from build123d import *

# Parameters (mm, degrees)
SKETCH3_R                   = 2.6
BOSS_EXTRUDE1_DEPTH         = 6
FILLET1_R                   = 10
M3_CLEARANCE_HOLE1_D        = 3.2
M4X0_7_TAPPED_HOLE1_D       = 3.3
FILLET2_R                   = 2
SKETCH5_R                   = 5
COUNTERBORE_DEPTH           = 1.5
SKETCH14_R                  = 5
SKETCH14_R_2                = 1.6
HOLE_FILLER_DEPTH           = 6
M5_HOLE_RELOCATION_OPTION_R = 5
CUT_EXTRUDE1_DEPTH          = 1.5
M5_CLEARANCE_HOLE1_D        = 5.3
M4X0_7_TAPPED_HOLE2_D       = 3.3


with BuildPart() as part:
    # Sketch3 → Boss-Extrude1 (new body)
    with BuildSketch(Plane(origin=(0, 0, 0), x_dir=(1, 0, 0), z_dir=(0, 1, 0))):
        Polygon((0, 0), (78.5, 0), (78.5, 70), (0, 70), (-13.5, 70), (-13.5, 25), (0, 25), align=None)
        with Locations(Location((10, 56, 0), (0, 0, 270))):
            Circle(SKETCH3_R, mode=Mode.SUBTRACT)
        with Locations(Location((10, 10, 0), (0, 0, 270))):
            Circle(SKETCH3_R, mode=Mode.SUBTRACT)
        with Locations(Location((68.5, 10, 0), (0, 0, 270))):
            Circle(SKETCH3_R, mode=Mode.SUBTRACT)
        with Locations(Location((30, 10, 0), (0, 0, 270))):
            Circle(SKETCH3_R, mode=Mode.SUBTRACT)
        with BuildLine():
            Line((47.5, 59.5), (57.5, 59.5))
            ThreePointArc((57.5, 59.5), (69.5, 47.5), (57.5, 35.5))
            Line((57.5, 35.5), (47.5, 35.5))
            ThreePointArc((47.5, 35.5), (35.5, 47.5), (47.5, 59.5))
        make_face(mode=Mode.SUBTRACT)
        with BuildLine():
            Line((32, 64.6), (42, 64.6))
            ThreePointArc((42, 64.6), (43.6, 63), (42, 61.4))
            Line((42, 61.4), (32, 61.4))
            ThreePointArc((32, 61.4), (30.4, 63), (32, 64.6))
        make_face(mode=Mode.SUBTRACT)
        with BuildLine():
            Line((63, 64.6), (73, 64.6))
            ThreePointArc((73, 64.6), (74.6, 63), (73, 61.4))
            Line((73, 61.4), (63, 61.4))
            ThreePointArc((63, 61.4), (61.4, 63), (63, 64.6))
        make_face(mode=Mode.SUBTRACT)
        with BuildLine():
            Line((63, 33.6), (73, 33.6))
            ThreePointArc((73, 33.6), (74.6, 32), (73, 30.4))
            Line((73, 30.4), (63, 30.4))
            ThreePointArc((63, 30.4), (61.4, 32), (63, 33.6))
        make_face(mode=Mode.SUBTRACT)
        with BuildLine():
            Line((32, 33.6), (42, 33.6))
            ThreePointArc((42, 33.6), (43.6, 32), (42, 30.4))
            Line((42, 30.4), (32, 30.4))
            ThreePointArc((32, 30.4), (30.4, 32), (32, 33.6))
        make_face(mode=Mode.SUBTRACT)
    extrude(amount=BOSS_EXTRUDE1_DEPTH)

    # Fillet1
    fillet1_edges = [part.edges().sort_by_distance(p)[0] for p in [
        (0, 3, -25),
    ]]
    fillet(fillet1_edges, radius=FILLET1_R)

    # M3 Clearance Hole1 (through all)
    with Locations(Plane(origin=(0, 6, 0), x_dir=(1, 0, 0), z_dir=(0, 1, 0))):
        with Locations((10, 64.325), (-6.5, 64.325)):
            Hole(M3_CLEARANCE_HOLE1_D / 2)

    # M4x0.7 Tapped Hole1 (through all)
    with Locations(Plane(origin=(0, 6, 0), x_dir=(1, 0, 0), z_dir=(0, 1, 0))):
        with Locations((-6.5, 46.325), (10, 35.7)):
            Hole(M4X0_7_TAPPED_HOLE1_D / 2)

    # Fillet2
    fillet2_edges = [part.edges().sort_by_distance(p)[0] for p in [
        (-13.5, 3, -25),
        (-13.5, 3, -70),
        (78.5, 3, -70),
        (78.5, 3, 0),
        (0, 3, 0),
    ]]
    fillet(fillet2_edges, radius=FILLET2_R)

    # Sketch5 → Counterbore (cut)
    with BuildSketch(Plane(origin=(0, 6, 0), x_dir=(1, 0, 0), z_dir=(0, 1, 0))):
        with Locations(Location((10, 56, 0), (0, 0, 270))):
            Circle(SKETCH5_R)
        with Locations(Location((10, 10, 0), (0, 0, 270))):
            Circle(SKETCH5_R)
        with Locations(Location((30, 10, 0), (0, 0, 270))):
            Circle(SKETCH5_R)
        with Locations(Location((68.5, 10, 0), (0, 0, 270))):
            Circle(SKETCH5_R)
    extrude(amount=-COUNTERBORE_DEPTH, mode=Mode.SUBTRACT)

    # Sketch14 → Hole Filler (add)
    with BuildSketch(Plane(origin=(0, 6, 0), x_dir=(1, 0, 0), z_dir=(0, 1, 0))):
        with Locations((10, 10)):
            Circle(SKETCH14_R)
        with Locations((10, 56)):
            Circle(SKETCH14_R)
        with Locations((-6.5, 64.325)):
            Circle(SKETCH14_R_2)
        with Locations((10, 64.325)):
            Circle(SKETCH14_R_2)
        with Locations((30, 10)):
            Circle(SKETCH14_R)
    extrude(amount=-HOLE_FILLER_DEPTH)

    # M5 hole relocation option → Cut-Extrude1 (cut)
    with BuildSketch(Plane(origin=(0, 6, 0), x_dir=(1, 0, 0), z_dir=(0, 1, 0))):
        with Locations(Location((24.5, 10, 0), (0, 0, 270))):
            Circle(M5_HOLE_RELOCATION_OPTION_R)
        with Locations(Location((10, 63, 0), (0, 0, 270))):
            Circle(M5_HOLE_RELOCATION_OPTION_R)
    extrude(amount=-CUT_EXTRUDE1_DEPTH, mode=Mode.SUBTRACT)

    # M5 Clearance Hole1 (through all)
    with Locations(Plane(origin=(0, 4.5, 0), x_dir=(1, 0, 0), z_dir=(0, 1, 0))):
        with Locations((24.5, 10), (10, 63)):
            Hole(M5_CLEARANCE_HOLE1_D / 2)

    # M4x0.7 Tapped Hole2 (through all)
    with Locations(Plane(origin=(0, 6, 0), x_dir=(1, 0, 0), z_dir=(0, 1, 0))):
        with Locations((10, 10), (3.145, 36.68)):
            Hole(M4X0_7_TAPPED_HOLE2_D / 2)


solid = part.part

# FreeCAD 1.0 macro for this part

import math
import FreeCAD as App
import Part
import Sketcher

V = App.Vector


def edges_at(feature, points):
    """Names of the edges that pass closest to the given points."""
    edges = feature.Shape.Edges
    near = lambda p: min(range(len(edges)), key=lambda i: edges[i].distToShape(Part.Vertex(*p))[0])
    return sorted({f"Edge{near(p) + 1}" for p in points})


def add_polygon(sketch, points):
    """Adds a closed chain of lines whose ends are joined by coincident constraints."""
    first, n = sketch.GeometryCount, len(points)
    for a, b in zip(points, points[1:] + points[:1]):
        sketch.addGeometry(Part.LineSegment(App.Vector(*a, 0), App.Vector(*b, 0)), False)
    for i in range(n):
        sketch.addConstraint(Sketcher.Constraint("Coincident", first + i, 2, first + (i + 1) % n, 1))

doc = App.newDocument("Part")
body = doc.addObject("PartDesign::Body", "Body")

# Sketch on XZ plane
sketch1 = body.newObject("Sketcher::SketchObject", "Sketch")
sketch1.AttachmentSupport = (doc.getObject("XZ_Plane"), [""])
sketch1.MapMode = "FlatFace"
add_polygon(sketch1, [(0, 0), (78.5, 0), (78.5, -70), (-13.5, -70), (-13.5, -25), (0, -25)])  # lines 0-5
sketch1.addGeometry(Part.Circle(V(10, -10, 0), V(0, 0, 1), 2.6), False)  # 6
sketch1.addGeometry(Part.Circle(V(30, -10, 0), V(0, 0, 1), 2.6), False)  # 7
sketch1.addGeometry(Part.ArcOfCircle(Part.Circle(V(32, -32, 0), V(0, 0, 1), 1.6), math.radians(90), math.radians(270)), False)  # 8
sketch1.addGeometry(Part.LineSegment(V(32, -33.6, 0), V(42, -33.6, 0)), False)  # 9
sketch1.addGeometry(Part.ArcOfCircle(Part.Circle(V(42, -32, 0), V(0, 0, 1), 1.6), math.radians(-90), math.radians(90)), False)  # 10
sketch1.addGeometry(Part.LineSegment(V(42, -30.4, 0), V(32, -30.4, 0)), False)  # 11
sketch1.addGeometry(Part.Circle(V(68.5, -10, 0), V(0, 0, 1), 2.6), False)  # 12
sketch1.addGeometry(Part.ArcOfCircle(Part.Circle(V(63, -32, 0), V(0, 0, 1), 1.6), math.radians(90), math.radians(270)), False)  # 13
sketch1.addGeometry(Part.LineSegment(V(63, -33.6, 0), V(73, -33.6, 0)), False)  # 14
sketch1.addGeometry(Part.ArcOfCircle(Part.Circle(V(73, -32, 0), V(0, 0, 1), 1.6), math.radians(-90), math.radians(90)), False)  # 15
sketch1.addGeometry(Part.LineSegment(V(73, -30.4, 0), V(63, -30.4, 0)), False)  # 16
sketch1.addGeometry(Part.Circle(V(10, -56, 0), V(0, 0, 1), 2.6), False)  # 17
sketch1.addGeometry(Part.ArcOfCircle(Part.Circle(V(32, -63, 0), V(0, 0, 1), 1.6), math.radians(90), math.radians(270)), False)  # 18
sketch1.addGeometry(Part.LineSegment(V(32, -64.6, 0), V(42, -64.6, 0)), False)  # 19
sketch1.addGeometry(Part.ArcOfCircle(Part.Circle(V(42, -63, 0), V(0, 0, 1), 1.6), math.radians(-90), math.radians(90)), False)  # 20
sketch1.addGeometry(Part.LineSegment(V(42, -61.4, 0), V(32, -61.4, 0)), False)  # 21
sketch1.addGeometry(Part.ArcOfCircle(Part.Circle(V(47.5, -47.5, 0), V(0, 0, 1), 12), math.radians(90), math.radians(270)), False)  # 22
sketch1.addGeometry(Part.LineSegment(V(47.5, -59.5, 0), V(57.5, -59.5, 0)), False)  # 23
sketch1.addGeometry(Part.ArcOfCircle(Part.Circle(V(57.5, -47.5, 0), V(0, 0, 1), 12), math.radians(-90), math.radians(90)), False)  # 24
sketch1.addGeometry(Part.LineSegment(V(57.5, -35.5, 0), V(47.5, -35.5, 0)), False)  # 25
sketch1.addGeometry(Part.ArcOfCircle(Part.Circle(V(63, -63, 0), V(0, 0, 1), 1.6), math.radians(90), math.radians(270)), False)  # 26
sketch1.addGeometry(Part.LineSegment(V(63, -64.6, 0), V(73, -64.6, 0)), False)  # 27
sketch1.addGeometry(Part.ArcOfCircle(Part.Circle(V(73, -63, 0), V(0, 0, 1), 1.6), math.radians(-90), math.radians(90)), False)  # 28
sketch1.addGeometry(Part.LineSegment(V(73, -61.4, 0), V(63, -61.4, 0)), False)  # 29
sketch1.addConstraint([
    Sketcher.Constraint("Tangent", 8, 2, 9, 1),
    Sketcher.Constraint("Tangent", 9, 2, 10, 1),
    Sketcher.Constraint("Tangent", 10, 2, 11, 1),
    Sketcher.Constraint("Tangent", 11, 2, 8, 1),
    Sketcher.Constraint("Tangent", 13, 2, 14, 1),
    Sketcher.Constraint("Tangent", 14, 2, 15, 1),
    Sketcher.Constraint("Tangent", 15, 2, 16, 1),
    Sketcher.Constraint("Tangent", 16, 2, 13, 1),
    Sketcher.Constraint("Tangent", 18, 2, 19, 1),
    Sketcher.Constraint("Tangent", 19, 2, 20, 1),
    Sketcher.Constraint("Tangent", 20, 2, 21, 1),
    Sketcher.Constraint("Tangent", 21, 2, 18, 1),
    Sketcher.Constraint("Tangent", 22, 2, 23, 1),
    Sketcher.Constraint("Tangent", 23, 2, 24, 1),
    Sketcher.Constraint("Tangent", 24, 2, 25, 1),
    Sketcher.Constraint("Tangent", 25, 2, 22, 1),
    Sketcher.Constraint("Tangent", 26, 2, 27, 1),
    Sketcher.Constraint("Tangent", 27, 2, 28, 1),
    Sketcher.Constraint("Tangent", 28, 2, 29, 1),
    Sketcher.Constraint("Tangent", 29, 2, 26, 1),
    Sketcher.Constraint("Horizontal", 0),
    Sketcher.Constraint("Vertical", 1),
    Sketcher.Constraint("Horizontal", 2),
    Sketcher.Constraint("Vertical", 3),
    Sketcher.Constraint("Horizontal", 4),
    Sketcher.Constraint("Vertical", 5),
    Sketcher.Constraint("Horizontal", 9),
    Sketcher.Constraint("Horizontal", 11),
    Sketcher.Constraint("Horizontal", 14),
    Sketcher.Constraint("Horizontal", 16),
    Sketcher.Constraint("Horizontal", 19),
    Sketcher.Constraint("Horizontal", 21),
    Sketcher.Constraint("Horizontal", 23),
    Sketcher.Constraint("Horizontal", 25),
    Sketcher.Constraint("Horizontal", 27),
    Sketcher.Constraint("Horizontal", 29),
    Sketcher.Constraint("Coincident", 5, 2, -1, 1),
    Sketcher.Constraint("Equal", 6, 7),
    Sketcher.Constraint("Equal", 7, 12),
    Sketcher.Constraint("Equal", 10, 13),
    Sketcher.Constraint("Equal", 12, 17),
    Sketcher.Constraint("Equal", 15, 18),
    Sketcher.Constraint("Equal", 20, 26),
    Sketcher.Constraint("Horizontal", 6, 3, 7, 3),
    Sketcher.Constraint("Horizontal", 7, 3, 12, 3),
    Sketcher.Constraint("Horizontal", 10, 3, 13, 3),
    Sketcher.Constraint("Horizontal", 20, 3, 26, 3),
    Sketcher.Constraint("Vertical", 6, 3, 17, 3),
    Sketcher.Constraint("Vertical", 8, 3, 18, 3),
    Sketcher.Constraint("Vertical", 10, 3, 20, 3),
    Sketcher.Constraint("Vertical", 13, 3, 26, 3),
    Sketcher.Constraint("Vertical", 15, 3, 28, 3),
    Sketcher.Constraint("Equal", 11, 14),
    Sketcher.Constraint("Equal", 21, 23),
    Sketcher.Constraint("Radius", 22, 12.0),
    Sketcher.Constraint("Diameter", 6, 5.2),
    Sketcher.Constraint("Radius", 8, 1.6),
    Sketcher.Constraint("DistanceX", 2, 2, 2, 1, 92.0),
    Sketcher.Constraint("DistanceX", 9, 1, 9, 2, 10.0),
    Sketcher.Constraint("DistanceY", 1, 2, 1, 1, 70.0),
    Sketcher.Constraint("DistanceY", 3, 1, 3, 2, 45.0),
    Sketcher.Constraint("DistanceX", 0, 1, 0, 2, 78.5),
    Sketcher.Constraint("DistanceX", -1, 1, 6, 3, 10.0),
    Sketcher.Constraint("DistanceY", 6, 3, -1, 1, 10.0),
    Sketcher.Constraint("DistanceX", -1, 1, 7, 3, 30.0),
    Sketcher.Constraint("DistanceX", -1, 1, 8, 3, 32.0),
    Sketcher.Constraint("DistanceY", 8, 3, -1, 1, 32.0),
    Sketcher.Constraint("DistanceX", -1, 1, 13, 3, 63.0),
    Sketcher.Constraint("DistanceY", 17, 3, -1, 1, 56.0),
    Sketcher.Constraint("DistanceY", 18, 3, -1, 1, 63.0),
    Sketcher.Constraint("DistanceX", 12, 3, 0, 2, 10.0),
    Sketcher.Constraint("DistanceX", 24, 3, 1, 2, 21.0),
    Sketcher.Constraint("DistanceY", 22, 3, -1, 1, 47.5),
])
pad1 = body.newObject("PartDesign::Pad", "Pad")
pad1.Profile = sketch1
pad1.Length = 6
pad1.Reversed = True
doc.recompute()

fillet = body.newObject("PartDesign::Fillet", "Fillet")
fillet.Base = (pad1, edges_at(pad1, [(0, 3, -25)]))
fillet.Radius = 10

# Sketch on XZ plane
sketch2 = body.newObject("Sketcher::SketchObject", "Sketch001")
sketch2.AttachmentSupport = (doc.getObject("XZ_Plane"), [""])
sketch2.MapMode = "FlatFace"
sketch2.AttachmentOffset = App.Placement(V(0, 0, -6), App.Rotation())
sketch2.addGeometry([
    Part.Circle(V(10, -64.3, 0), V(0, 0, 1), 1.6),
    Part.Circle(V(-6.5, -64.3, 0), V(0, 0, 1), 1.6),
], False)
sketch2.addConstraint([
    Sketcher.Constraint("Equal", 0, 1),
    Sketcher.Constraint("Horizontal", 0, 3, 1, 3),
    Sketcher.Constraint("Diameter", 0, 3.2),
    Sketcher.Constraint("DistanceX", -1, 1, 0, 3, 10.0),
    Sketcher.Constraint("DistanceX", 1, 3, -1, 1, 6.5),
    Sketcher.Constraint("DistanceY", 0, 3, -1, 1, 64.325),
])
doc.recompute()
hole = body.newObject("PartDesign::Hole", "Hole")
hole.Profile = sketch2
hole.ThreadType = "None"
hole.Diameter = 3.2
hole.DepthType = "ThroughAll"
hole.Reversed = True

# Sketch on XZ plane
sketch3 = body.newObject("Sketcher::SketchObject", "Sketch002")
sketch3.AttachmentSupport = (doc.getObject("XZ_Plane"), [""])
sketch3.MapMode = "FlatFace"
sketch3.AttachmentOffset = App.Placement(V(0, 0, -6), App.Rotation())
sketch3.addGeometry([
    Part.Circle(V(-6.5, -46.3, 0), V(0, 0, 1), 1.6),
    Part.Circle(V(10, -35.7, 0), V(0, 0, 1), 1.6),
], False)
sketch3.addConstraint([
    Sketcher.Constraint("Equal", 0, 1),
    Sketcher.Constraint("Diameter", 0, 3.3),
    Sketcher.Constraint("DistanceX", -1, 1, 1, 3, 10.0),
    Sketcher.Constraint("DistanceX", 0, 3, -1, 1, 6.5),
    Sketcher.Constraint("DistanceY", 1, 3, -1, 1, 35.7),
    Sketcher.Constraint("DistanceY", 0, 3, -1, 1, 46.325),
])
doc.recompute()
hole2 = body.newObject("PartDesign::Hole", "Hole001")
hole2.Profile = sketch3
hole2.ThreadType = "None"
hole2.Diameter = 3.3
hole2.DepthType = "ThroughAll"
hole2.Reversed = True
doc.recompute()

fillet2 = body.newObject("PartDesign::Fillet", "Fillet001")
fillet2.Base = (hole2, edges_at(hole2, [
    (-13.5, 3, -25),
    (-13.5, 3, -70),
    (78.5, 3, -70),
    (78.5, 3, 0),
    (0, 3, 0),
]))
fillet2.Radius = 2

# Sketch on XZ plane
sketch4 = body.newObject("Sketcher::SketchObject", "Sketch003")
sketch4.AttachmentSupport = (doc.getObject("XZ_Plane"), [""])
sketch4.MapMode = "FlatFace"
sketch4.AttachmentOffset = App.Placement(V(0, 0, -6), App.Rotation())
sketch4.addGeometry([
    Part.Circle(V(10, -56, 0), V(0, 0, 1), 5),
    Part.Circle(V(10, -10, 0), V(0, 0, 1), 5),
    Part.Circle(V(30, -10, 0), V(0, 0, 1), 5),
    Part.Circle(V(68, -10, 0), V(0, 0, 1), 5),
], False)
sketch4.addConstraint([
    Sketcher.Constraint("Equal", 0, 1),
    Sketcher.Constraint("Equal", 1, 2),
    Sketcher.Constraint("Equal", 2, 3),
    Sketcher.Constraint("Horizontal", 1, 3, 2, 3),
    Sketcher.Constraint("Horizontal", 2, 3, 3, 3),
    Sketcher.Constraint("Vertical", 0, 3, 1, 3),
    Sketcher.Constraint("Diameter", 0, 10.0),
    Sketcher.Constraint("DistanceX", -1, 1, 0, 3, 10.0),
    Sketcher.Constraint("DistanceY", 0, 3, -1, 1, 56.0),
    Sketcher.Constraint("DistanceY", 1, 3, -1, 1, 10.0),
    Sketcher.Constraint("DistanceX", -1, 1, 2, 3, 30.0),
    Sketcher.Constraint("DistanceX", -1, 1, 3, 3, 68.5),
])
pocket1 = body.newObject("PartDesign::Pocket", "Pocket")
pocket1.Profile = sketch4
pocket1.Length = 1.5
pocket1.Reversed = True

# Sketch on XZ plane
sketch5 = body.newObject("Sketcher::SketchObject", "Sketch004")
sketch5.AttachmentSupport = (doc.getObject("XZ_Plane"), [""])
sketch5.MapMode = "FlatFace"
sketch5.AttachmentOffset = App.Placement(V(0, 0, -6), App.Rotation())
sketch5.addGeometry([
    Part.Circle(V(10, -10, 0), V(0, 0, 1), 5),  # 0
    Part.Circle(V(10, -56, 0), V(0, 0, 1), 5),  # 1
    Part.Circle(V(-6.5, -64.3, 0), V(0, 0, 1), 1.6),  # 2
    Part.Circle(V(10, -64.3, 0), V(0, 0, 1), 1.6),  # 3
    Part.Circle(V(30, -10, 0), V(0, 0, 1), 5),  # 4
], False)
sketch5.addConstraint([
    Sketcher.Constraint("Equal", 0, 1),
    Sketcher.Constraint("Equal", 2, 3),
    Sketcher.Constraint("Equal", 1, 4),
    Sketcher.Constraint("Horizontal", 2, 3, 3, 3),
    Sketcher.Constraint("Horizontal", 0, 3, 4, 3),
    Sketcher.Constraint("Vertical", 0, 3, 1, 3),
    Sketcher.Constraint("Vertical", 1, 3, 3, 3),
    Sketcher.Constraint("Diameter", 0, 10.0),
    Sketcher.Constraint("Diameter", 2, 3.2),
    Sketcher.Constraint("DistanceX", -1, 1, 0, 3, 10.0),
    Sketcher.Constraint("DistanceY", 0, 3, -1, 1, 10.0),
    Sketcher.Constraint("DistanceY", 1, 3, -1, 1, 56.0),
    Sketcher.Constraint("DistanceX", -1, 1, 4, 3, 30.0),
    Sketcher.Constraint("DistanceX", 2, 3, -1, 1, 6.5),
    Sketcher.Constraint("DistanceY", 2, 3, -1, 1, 64.325),
])
pad2 = body.newObject("PartDesign::Pad", "Pad001")
pad2.Profile = sketch5
pad2.Length = 6

# Sketch on XZ plane
sketch6 = body.newObject("Sketcher::SketchObject", "Sketch005")
sketch6.AttachmentSupport = (doc.getObject("XZ_Plane"), [""])
sketch6.MapMode = "FlatFace"
sketch6.AttachmentOffset = App.Placement(V(0, 0, -6), App.Rotation())
sketch6.addGeometry([
    Part.Circle(V(24, -10, 0), V(0, 0, 1), 5),
    Part.Circle(V(10, -63, 0), V(0, 0, 1), 5),
], False)
sketch6.addConstraint([
    Sketcher.Constraint("Equal", 0, 1),
    Sketcher.Constraint("Diameter", 0, 10.0),
    Sketcher.Constraint("DistanceY", 0, 3, -1, 1, 10.0),
    Sketcher.Constraint("DistanceX", -1, 1, 1, 3, 10.0),
    Sketcher.Constraint("DistanceY", 1, 3, -1, 1, 63.0),
    Sketcher.Constraint("DistanceX", -1, 1, 0, 3, 24.5),
])
pocket2 = body.newObject("PartDesign::Pocket", "Pocket001")
pocket2.Profile = sketch6
pocket2.Length = 1.5
pocket2.Reversed = True

# Sketch on XZ plane
sketch7 = body.newObject("Sketcher::SketchObject", "Sketch006")
sketch7.AttachmentSupport = (doc.getObject("XZ_Plane"), [""])
sketch7.MapMode = "FlatFace"
sketch7.AttachmentOffset = App.Placement(V(0, 0, -4.5), App.Rotation())
sketch7.addGeometry([
    Part.Circle(V(24.5, -10, 0), V(0, 0, 1), 2.6),
    Part.Circle(V(10, -63, 0), V(0, 0, 1), 2.6),
], False)
sketch7.addConstraint([
    Sketcher.Constraint("Equal", 0, 1),
    Sketcher.Constraint("Diameter", 0, 5.3),
    Sketcher.Constraint("DistanceY", 0, 3, -1, 1, 10.0),
    Sketcher.Constraint("DistanceX", -1, 1, 1, 3, 10.0),
    Sketcher.Constraint("DistanceY", 1, 3, -1, 1, 63.0),
    Sketcher.Constraint("DistanceX", -1, 1, 0, 3, 24.5),
])
doc.recompute()
hole3 = body.newObject("PartDesign::Hole", "Hole002")
hole3.Profile = sketch7
hole3.ThreadType = "None"
hole3.Diameter = 5.3
hole3.DepthType = "ThroughAll"
hole3.Reversed = True

# Sketch on XZ plane
sketch8 = body.newObject("Sketcher::SketchObject", "Sketch007")
sketch8.AttachmentSupport = (doc.getObject("XZ_Plane"), [""])
sketch8.MapMode = "FlatFace"
sketch8.AttachmentOffset = App.Placement(V(0, 0, -6), App.Rotation())
sketch8.addGeometry([
    Part.Circle(V(10, -10, 0), V(0, 0, 1), 1.6),
    Part.Circle(V(3.1, -36.7, 0), V(0, 0, 1), 1.6),
], False)
sketch8.addConstraint([
    Sketcher.Constraint("Equal", 0, 1),
    Sketcher.Constraint("Diameter", 0, 3.3),
    Sketcher.Constraint("DistanceX", -1, 1, 0, 3, 10.0),
    Sketcher.Constraint("DistanceY", 0, 3, -1, 1, 10.0),
    Sketcher.Constraint("DistanceY", 1, 3, -1, 1, 36.68),
    Sketcher.Constraint("DistanceX", -1, 1, 1, 3, 3.145),
])
doc.recompute()
hole4 = body.newObject("PartDesign::Hole", "Hole003")
hole4.Profile = sketch8
hole4.ThreadType = "None"
hole4.Diameter = 3.3
hole4.DepthType = "ThroughAll"
hole4.Reversed = True

doc.recompute()
